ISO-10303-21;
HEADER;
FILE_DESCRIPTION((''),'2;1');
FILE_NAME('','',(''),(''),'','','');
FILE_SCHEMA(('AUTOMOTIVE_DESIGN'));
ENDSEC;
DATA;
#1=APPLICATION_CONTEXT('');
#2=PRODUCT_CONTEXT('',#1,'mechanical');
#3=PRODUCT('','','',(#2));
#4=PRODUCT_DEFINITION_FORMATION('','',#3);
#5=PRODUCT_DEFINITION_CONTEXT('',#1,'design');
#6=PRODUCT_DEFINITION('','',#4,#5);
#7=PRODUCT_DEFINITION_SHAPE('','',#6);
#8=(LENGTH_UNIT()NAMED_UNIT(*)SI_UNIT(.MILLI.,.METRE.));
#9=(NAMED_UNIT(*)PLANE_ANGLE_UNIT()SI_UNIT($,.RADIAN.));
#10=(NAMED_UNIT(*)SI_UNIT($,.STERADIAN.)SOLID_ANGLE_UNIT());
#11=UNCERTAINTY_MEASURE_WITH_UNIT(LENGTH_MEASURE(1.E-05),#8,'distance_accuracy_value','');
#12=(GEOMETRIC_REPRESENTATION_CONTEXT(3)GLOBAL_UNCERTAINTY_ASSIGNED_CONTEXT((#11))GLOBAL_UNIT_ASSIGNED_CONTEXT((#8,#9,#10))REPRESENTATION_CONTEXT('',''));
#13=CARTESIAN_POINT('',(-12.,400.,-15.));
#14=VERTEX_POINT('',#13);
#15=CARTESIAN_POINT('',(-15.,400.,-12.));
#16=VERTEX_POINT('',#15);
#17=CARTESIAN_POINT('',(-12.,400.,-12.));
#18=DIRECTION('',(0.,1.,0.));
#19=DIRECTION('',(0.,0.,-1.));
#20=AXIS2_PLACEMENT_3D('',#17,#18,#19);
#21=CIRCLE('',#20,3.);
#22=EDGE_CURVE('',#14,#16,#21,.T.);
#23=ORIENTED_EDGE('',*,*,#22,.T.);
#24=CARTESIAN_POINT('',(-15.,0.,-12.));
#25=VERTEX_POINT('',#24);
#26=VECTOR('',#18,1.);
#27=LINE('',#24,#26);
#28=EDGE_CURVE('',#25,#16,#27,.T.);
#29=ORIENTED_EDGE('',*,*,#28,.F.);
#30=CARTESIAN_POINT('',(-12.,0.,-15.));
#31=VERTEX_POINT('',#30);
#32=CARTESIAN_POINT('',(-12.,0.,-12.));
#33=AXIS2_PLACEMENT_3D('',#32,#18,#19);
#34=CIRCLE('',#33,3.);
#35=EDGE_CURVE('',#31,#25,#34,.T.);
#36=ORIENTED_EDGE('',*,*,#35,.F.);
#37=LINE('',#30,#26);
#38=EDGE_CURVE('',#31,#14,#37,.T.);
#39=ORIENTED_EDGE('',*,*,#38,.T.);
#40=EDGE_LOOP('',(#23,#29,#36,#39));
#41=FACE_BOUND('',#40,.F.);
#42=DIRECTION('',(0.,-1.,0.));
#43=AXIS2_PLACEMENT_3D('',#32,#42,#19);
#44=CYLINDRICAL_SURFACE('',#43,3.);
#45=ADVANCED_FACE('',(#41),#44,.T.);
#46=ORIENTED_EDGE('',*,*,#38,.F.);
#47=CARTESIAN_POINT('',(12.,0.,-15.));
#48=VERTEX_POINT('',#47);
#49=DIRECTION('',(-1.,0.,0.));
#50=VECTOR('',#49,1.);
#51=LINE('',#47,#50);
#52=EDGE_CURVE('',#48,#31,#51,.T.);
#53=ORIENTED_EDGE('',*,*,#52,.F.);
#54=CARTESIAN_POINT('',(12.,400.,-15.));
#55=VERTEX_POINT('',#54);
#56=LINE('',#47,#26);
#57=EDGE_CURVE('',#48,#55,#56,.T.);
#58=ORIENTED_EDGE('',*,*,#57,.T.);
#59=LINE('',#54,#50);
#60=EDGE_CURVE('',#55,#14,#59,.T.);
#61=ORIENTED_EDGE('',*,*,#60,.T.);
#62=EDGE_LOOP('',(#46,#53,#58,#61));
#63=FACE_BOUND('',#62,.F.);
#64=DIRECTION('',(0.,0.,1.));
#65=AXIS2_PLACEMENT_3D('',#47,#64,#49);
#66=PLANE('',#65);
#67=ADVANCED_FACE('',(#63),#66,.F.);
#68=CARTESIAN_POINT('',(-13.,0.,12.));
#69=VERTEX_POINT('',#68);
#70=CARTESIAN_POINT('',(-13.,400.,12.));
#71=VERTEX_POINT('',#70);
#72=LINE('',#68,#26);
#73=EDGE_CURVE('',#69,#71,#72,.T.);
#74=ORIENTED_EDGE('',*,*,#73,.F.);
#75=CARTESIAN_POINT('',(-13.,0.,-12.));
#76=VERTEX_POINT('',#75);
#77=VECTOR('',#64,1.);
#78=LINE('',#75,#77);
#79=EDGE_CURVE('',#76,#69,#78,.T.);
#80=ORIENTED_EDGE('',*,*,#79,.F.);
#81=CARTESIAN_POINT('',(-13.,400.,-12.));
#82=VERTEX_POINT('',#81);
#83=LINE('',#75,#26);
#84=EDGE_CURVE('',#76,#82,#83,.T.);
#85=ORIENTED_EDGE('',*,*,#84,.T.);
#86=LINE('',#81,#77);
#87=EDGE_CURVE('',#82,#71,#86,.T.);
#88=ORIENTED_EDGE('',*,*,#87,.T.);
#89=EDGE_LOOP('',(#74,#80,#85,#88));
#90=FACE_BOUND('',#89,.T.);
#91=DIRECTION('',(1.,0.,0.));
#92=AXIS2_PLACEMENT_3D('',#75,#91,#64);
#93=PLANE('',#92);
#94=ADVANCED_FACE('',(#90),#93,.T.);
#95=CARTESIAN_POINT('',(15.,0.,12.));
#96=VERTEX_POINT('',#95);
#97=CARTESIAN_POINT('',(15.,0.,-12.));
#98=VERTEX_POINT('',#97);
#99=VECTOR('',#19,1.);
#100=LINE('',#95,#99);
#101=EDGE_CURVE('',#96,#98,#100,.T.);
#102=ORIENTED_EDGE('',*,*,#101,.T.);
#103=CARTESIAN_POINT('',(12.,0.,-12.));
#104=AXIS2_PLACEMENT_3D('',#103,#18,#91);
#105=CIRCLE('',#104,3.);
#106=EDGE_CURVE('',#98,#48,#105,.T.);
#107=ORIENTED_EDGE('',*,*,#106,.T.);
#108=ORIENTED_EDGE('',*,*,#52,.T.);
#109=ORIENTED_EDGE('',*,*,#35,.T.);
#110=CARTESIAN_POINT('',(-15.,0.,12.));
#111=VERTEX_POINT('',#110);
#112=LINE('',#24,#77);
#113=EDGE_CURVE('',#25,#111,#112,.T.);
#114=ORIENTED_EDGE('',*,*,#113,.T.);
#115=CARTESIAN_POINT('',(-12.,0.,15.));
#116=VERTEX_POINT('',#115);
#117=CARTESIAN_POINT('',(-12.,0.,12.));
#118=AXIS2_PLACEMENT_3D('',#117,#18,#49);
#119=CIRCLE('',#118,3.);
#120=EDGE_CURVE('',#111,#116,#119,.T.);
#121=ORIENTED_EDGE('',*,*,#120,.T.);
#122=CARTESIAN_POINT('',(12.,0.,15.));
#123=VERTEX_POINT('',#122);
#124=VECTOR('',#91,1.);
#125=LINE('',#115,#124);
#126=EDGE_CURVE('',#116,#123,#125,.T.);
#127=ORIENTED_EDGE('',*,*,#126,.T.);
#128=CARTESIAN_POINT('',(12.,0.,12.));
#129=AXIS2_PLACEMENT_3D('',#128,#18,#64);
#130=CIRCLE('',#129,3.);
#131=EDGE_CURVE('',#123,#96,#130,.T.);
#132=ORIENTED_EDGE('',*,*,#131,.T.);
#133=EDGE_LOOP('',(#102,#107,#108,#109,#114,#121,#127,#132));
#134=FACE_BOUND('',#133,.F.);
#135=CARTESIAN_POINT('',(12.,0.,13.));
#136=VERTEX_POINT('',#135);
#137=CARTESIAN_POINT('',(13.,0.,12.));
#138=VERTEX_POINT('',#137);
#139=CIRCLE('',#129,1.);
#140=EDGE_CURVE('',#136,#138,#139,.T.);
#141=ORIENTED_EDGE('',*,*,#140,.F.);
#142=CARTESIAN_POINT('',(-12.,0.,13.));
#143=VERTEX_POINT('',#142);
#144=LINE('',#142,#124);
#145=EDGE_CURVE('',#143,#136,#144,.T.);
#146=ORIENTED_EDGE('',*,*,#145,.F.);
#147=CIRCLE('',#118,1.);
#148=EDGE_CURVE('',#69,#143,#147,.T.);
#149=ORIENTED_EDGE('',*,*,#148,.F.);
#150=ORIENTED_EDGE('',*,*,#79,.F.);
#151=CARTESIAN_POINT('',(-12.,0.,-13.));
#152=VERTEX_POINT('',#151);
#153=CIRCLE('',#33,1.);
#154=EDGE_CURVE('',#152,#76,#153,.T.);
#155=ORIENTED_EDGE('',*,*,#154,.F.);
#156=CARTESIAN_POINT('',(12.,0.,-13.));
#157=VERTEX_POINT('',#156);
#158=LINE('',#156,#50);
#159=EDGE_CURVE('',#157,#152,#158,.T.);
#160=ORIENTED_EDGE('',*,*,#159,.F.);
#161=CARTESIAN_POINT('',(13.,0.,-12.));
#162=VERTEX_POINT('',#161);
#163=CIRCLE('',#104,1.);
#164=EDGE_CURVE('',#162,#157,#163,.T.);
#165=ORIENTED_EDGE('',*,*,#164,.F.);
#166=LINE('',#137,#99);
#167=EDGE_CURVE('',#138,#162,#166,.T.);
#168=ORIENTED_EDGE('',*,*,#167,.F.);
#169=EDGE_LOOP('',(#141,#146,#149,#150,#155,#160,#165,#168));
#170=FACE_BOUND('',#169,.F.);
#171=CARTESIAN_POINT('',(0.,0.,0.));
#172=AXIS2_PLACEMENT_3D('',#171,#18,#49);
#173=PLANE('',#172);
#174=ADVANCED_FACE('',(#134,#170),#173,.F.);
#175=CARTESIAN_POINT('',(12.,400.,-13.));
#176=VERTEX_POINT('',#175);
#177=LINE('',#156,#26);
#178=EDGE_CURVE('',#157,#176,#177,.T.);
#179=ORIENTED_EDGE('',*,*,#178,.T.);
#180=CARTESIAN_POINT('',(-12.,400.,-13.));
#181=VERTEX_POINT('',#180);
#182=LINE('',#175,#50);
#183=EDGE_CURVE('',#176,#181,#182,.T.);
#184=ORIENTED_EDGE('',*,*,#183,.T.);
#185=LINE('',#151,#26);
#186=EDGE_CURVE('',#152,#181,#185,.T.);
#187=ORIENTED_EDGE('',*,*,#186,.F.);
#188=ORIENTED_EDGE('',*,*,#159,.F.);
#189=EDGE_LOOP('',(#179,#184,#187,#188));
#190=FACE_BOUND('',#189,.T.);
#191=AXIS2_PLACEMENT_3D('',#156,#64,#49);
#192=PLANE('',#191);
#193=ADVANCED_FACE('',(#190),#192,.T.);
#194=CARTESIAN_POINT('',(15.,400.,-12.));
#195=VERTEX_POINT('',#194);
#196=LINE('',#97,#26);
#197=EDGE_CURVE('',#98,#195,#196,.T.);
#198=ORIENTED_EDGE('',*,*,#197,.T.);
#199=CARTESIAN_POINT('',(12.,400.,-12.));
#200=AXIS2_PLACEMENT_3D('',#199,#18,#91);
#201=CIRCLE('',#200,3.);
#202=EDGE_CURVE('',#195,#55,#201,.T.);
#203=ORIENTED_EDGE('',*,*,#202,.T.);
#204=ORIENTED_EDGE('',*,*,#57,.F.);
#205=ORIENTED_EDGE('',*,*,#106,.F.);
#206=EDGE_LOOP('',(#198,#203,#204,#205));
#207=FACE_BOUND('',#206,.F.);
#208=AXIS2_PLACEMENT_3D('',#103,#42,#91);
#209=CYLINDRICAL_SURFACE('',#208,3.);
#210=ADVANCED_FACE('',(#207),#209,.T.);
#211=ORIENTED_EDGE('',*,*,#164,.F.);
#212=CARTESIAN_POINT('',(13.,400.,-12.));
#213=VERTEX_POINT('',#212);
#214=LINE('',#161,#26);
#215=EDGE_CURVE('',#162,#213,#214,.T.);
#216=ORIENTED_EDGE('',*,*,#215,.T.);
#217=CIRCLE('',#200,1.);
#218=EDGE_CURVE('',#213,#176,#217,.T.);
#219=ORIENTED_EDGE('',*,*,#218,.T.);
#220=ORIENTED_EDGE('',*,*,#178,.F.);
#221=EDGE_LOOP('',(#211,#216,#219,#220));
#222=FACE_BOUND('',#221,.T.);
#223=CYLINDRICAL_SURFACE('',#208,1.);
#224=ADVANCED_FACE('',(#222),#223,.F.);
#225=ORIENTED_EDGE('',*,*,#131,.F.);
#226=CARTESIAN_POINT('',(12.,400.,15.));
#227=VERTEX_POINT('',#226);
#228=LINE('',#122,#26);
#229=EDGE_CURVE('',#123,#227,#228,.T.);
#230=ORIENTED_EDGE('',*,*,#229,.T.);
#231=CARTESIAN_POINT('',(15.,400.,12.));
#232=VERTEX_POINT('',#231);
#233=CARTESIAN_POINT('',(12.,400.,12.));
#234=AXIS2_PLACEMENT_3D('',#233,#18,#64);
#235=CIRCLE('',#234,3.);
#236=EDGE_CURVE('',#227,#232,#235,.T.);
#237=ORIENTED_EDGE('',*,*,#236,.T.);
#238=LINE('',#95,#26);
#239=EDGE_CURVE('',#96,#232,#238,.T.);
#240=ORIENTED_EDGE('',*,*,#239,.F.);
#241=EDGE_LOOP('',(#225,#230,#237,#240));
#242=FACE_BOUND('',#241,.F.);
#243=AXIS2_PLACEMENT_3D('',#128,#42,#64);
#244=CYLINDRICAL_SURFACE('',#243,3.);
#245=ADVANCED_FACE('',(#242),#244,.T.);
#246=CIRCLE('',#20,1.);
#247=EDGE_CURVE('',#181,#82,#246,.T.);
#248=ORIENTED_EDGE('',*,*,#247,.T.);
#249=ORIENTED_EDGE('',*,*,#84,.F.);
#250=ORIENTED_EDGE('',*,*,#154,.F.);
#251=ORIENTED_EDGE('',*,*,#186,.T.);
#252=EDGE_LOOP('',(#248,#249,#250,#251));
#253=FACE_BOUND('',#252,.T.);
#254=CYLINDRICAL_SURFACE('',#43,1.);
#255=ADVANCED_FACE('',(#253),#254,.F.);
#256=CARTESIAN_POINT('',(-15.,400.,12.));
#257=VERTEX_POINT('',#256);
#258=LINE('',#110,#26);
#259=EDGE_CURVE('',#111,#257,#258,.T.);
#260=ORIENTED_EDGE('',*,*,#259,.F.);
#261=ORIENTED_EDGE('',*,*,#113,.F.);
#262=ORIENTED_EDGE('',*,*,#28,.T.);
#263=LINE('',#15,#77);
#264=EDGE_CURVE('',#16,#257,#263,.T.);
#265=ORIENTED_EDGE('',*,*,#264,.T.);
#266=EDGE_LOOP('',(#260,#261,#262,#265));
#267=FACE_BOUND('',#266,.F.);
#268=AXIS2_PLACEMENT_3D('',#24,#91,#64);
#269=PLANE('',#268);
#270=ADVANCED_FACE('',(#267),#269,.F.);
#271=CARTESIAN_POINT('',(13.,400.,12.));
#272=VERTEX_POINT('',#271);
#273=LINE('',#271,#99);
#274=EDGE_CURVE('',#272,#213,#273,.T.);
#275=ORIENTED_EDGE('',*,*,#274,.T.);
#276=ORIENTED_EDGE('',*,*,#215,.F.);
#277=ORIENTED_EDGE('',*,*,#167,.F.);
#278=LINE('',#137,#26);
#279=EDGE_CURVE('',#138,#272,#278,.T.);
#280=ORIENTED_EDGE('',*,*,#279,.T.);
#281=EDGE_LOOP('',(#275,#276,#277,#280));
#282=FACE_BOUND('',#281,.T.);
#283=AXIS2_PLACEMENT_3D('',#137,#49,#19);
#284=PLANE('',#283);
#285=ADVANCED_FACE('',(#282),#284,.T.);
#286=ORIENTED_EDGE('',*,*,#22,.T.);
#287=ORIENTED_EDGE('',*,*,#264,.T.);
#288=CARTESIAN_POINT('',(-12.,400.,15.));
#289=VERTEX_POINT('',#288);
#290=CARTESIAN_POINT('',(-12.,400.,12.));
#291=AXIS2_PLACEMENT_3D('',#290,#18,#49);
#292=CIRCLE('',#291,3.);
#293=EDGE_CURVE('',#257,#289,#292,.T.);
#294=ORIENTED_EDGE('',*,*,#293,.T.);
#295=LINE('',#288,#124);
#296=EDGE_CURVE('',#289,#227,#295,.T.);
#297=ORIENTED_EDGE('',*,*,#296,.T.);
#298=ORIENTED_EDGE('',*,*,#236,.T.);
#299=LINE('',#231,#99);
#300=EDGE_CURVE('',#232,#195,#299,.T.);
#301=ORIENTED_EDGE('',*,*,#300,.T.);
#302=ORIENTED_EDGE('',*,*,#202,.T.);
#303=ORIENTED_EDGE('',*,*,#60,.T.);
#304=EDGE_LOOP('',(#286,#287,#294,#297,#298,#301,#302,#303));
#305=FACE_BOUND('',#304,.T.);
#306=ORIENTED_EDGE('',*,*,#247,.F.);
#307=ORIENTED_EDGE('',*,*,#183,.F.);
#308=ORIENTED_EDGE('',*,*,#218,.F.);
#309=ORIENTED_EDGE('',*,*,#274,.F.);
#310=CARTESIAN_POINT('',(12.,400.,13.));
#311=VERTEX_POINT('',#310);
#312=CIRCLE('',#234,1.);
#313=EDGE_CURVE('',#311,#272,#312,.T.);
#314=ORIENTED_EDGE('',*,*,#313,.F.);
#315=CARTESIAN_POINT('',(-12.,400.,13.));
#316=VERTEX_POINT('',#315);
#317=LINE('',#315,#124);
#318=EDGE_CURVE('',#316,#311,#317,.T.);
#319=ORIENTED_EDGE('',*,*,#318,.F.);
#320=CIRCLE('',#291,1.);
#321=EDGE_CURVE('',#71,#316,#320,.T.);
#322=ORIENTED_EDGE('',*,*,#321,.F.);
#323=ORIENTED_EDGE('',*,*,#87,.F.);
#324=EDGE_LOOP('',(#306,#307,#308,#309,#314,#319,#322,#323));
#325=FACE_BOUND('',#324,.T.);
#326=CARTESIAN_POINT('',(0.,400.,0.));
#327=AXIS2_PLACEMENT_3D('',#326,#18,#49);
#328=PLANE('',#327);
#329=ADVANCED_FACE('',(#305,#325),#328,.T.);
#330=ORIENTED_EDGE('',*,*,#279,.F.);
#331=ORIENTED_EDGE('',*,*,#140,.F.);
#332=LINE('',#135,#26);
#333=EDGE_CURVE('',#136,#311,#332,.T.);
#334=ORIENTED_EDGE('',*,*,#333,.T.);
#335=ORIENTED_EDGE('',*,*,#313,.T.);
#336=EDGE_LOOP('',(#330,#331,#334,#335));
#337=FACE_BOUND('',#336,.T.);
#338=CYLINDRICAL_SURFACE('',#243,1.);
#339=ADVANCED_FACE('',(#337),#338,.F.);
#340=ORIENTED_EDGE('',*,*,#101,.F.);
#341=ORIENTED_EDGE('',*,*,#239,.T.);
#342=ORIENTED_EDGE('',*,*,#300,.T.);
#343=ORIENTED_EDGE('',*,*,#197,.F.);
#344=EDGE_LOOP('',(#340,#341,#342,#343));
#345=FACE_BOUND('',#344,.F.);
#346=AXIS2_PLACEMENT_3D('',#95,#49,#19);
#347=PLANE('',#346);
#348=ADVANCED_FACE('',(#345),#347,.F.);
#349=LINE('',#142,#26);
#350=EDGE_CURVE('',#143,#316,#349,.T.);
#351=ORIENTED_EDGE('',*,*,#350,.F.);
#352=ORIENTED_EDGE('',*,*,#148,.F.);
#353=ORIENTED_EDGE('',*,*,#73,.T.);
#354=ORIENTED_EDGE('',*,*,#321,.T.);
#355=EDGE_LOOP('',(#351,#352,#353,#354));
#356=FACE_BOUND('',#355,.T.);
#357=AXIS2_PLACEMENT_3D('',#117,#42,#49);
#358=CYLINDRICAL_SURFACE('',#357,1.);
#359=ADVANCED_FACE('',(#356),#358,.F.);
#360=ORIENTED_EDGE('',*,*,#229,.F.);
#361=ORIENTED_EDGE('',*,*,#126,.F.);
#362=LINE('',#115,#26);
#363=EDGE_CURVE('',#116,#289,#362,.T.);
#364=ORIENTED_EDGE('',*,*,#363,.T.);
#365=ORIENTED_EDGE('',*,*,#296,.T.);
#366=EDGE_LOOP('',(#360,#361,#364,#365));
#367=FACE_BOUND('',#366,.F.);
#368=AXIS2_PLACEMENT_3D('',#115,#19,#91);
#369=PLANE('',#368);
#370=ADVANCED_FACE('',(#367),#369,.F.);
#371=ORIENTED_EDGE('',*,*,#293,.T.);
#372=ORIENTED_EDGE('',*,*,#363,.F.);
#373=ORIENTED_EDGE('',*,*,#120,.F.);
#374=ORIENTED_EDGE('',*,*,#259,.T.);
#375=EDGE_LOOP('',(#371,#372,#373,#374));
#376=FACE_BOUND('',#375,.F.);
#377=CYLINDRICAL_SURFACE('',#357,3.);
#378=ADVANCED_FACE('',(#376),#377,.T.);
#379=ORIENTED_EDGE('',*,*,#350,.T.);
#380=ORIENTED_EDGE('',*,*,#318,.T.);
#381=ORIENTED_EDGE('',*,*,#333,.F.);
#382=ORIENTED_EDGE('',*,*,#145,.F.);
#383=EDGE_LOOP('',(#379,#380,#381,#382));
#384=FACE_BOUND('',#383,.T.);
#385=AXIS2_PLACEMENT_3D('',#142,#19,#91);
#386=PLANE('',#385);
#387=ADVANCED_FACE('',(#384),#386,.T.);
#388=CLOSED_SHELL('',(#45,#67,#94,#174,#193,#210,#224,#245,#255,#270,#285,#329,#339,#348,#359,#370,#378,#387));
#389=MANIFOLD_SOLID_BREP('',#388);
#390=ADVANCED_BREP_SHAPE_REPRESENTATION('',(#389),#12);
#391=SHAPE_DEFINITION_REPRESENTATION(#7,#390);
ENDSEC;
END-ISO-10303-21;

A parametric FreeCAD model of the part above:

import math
import FreeCAD as App
import Part
import Sketcher
from FreeCAD import Vector
Q = App.Units.Quantity

doc = App.newDocument("Part")
body = doc.addObject("PartDesign::Body", "Body")

sketch1 = body.newObject("Sketcher::SketchObject", "Sketch")
sketch1.AttachmentSupport = (doc.getObject("XZ_Plane"), [""])
sketch1.MapMode = "FlatFace"
sketch1.addGeometry([
    Part.ArcOfCircle(Part.Circle(Vector(12, -12, 0), Vector(0, 0, 1), 3), math.radians(-90), math.radians(0)),
    Part.LineSegment(Vector(12, -15, 0), Vector(-12, -15, 0)),
    Part.ArcOfCircle(Part.Circle(Vector(-12, -12, 0), Vector(0, 0, 1), 3), math.radians(180), math.radians(270)),
    Part.LineSegment(Vector(-15, -12, 0), Vector(-15, 12, 0)),
    Part.ArcOfCircle(Part.Circle(Vector(-12, 12, 0), Vector(0, 0, 1), 3), math.radians(90), math.radians(180)),
    Part.LineSegment(Vector(-12, 15, 0), Vector(12, 15, 0)),
    Part.ArcOfCircle(Part.Circle(Vector(12, 12, 0), Vector(0, 0, 1), 3), math.radians(0), math.radians(90)),
    Part.LineSegment(Vector(15, 12, 0), Vector(15, -12, 0)),
    Part.LineSegment(Vector(-13, 12, 0), Vector(-13, -12, 0)),
    Part.ArcOfCircle(Part.Circle(Vector(-12, -12, 0), Vector(0, 0, 1), 1), math.radians(180), math.radians(270)),
    Part.LineSegment(Vector(-12, -13, 0), Vector(12, -13, 0)),
    Part.ArcOfCircle(Part.Circle(Vector(12, -12, 0), Vector(0, 0, 1), 1), math.radians(-90), math.radians(0)),
    Part.LineSegment(Vector(13, -12, 0), Vector(13, 12, 0)),
    Part.ArcOfCircle(Part.Circle(Vector(12, 12, 0), Vector(0, 0, 1), 1), math.radians(0), math.radians(90)),
    Part.LineSegment(Vector(12, 13, 0), Vector(-12, 13, 0)),
    Part.ArcOfCircle(Part.Circle(Vector(-12, 12, 0), Vector(0, 0, 1), 1), math.radians(90), math.radians(180)),
], False)
sketch1.addConstraint([
    Sketcher.Constraint("Tangent", 0, 1, 1, 1),
    Sketcher.Constraint("Tangent", 1, 2, 2, 2),
    Sketcher.Constraint("Tangent", 2, 1, 3, 1),
    Sketcher.Constraint("Tangent", 3, 2, 4, 2),
    Sketcher.Constraint("Tangent", 4, 1, 5, 1),
    Sketcher.Constraint("Tangent", 5, 2, 6, 2),
    Sketcher.Constraint("Tangent", 6, 1, 7, 1),
    Sketcher.Constraint("Tangent", 7, 2, 0, 2),
    Sketcher.Constraint("Tangent", 8, 2, 9, 1),
    Sketcher.Constraint("Tangent", 9, 2, 10, 1),
    Sketcher.Constraint("Tangent", 10, 2, 11, 1),
    Sketcher.Constraint("Tangent", 11, 2, 12, 1),
    Sketcher.Constraint("Tangent", 12, 2, 13, 1),
    Sketcher.Constraint("Tangent", 13, 2, 14, 1),
    Sketcher.Constraint("Tangent", 14, 2, 15, 1),
    Sketcher.Constraint("Tangent", 15, 2, 8, 1),
    Sketcher.Constraint("Horizontal", 1),
    Sketcher.Constraint("Vertical", 3),
    Sketcher.Constraint("Horizontal", 5),
    Sketcher.Constraint("Vertical", 7),
    Sketcher.Constraint("Vertical", 8),
    Sketcher.Constraint("Horizontal", 10),
    Sketcher.Constraint("Vertical", 12),
    Sketcher.Constraint("Horizontal", 14),
    Sketcher.Constraint("Coincident", 9, 3, 2, 3),
    Sketcher.Constraint("Coincident", 11, 3, 0, 3),
    Sketcher.Constraint("Coincident", 13, 3, 6, 3),
    Sketcher.Constraint("Equal", 0, 2),
    Sketcher.Constraint("Equal", 2, 4),
    Sketcher.Constraint("Equal", 4, 6),
    Sketcher.Constraint("Equal", 13, 15),
    Sketcher.Constraint("Symmetric", 0, 3, 4, 3, -1, 1),
    Sketcher.Constraint("Equal", 14, 3),
    Sketcher.Constraint("Radius", 9, Q("1 mm")),
    Sketcher.Constraint("Radius", 0, Q("3 mm")),
    Sketcher.Constraint("DistanceX", 1, 2, 1, 1, Q("24 mm")),
])
pad1 = body.newObject("PartDesign::Pad", "Pad")
pad1.Profile = sketch1
pad1.Length = 400
pad1.Reversed = True

doc.recompute()
